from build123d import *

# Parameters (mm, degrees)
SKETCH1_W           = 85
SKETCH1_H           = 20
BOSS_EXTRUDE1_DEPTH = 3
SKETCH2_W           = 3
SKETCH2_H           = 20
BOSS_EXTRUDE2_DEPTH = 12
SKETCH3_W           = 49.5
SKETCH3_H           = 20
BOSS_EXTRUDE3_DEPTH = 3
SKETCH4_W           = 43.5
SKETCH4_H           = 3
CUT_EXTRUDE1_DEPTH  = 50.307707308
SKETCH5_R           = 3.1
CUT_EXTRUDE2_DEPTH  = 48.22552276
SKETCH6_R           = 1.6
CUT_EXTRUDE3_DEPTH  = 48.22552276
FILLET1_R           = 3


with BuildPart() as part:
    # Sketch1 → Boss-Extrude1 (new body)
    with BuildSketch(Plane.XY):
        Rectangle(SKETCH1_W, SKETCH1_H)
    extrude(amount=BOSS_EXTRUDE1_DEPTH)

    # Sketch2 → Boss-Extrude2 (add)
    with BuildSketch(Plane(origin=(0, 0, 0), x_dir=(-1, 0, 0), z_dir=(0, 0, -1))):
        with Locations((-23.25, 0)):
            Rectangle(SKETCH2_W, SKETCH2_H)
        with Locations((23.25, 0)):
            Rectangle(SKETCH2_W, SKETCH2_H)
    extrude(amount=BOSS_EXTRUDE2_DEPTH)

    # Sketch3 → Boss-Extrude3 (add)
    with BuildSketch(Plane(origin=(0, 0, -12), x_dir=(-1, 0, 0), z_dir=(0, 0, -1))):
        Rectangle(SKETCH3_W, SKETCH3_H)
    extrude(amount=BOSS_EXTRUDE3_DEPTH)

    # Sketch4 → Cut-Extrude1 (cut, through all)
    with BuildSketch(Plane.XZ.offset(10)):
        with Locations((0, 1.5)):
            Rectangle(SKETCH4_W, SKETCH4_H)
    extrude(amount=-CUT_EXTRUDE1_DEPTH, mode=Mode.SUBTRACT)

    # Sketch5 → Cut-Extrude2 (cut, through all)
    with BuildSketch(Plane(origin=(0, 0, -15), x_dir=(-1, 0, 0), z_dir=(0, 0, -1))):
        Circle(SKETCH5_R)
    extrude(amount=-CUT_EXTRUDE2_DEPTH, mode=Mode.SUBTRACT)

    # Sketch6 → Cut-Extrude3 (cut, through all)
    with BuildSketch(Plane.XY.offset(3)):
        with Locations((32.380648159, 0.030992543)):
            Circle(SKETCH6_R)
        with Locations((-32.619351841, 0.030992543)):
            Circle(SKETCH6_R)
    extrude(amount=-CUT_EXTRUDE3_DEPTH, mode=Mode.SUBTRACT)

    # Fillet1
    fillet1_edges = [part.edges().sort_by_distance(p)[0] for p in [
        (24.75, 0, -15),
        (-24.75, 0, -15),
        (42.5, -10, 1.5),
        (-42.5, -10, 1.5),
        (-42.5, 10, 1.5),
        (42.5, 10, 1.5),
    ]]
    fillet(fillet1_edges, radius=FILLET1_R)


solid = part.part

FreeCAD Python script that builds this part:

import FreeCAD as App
import Part
import Sketcher
Q = App.Units.Quantity


def edges_at(feature, points):
    """Names of the edges that pass closest to the given points."""
    edges = feature.Shape.Edges
    near = lambda p: min(range(len(edges)), key=lambda i: edges[i].distToShape(Part.Vertex(*p))[0])
    return sorted({f"Edge{near(p) + 1}" for p in points})


def add_polygon(sketch, points):
    """Adds a closed chain of lines whose ends are joined by coincident constraints."""
    first, n = sketch.GeometryCount, len(points)
    for a, b in zip(points, points[1:] + points[:1]):
        sketch.addGeometry(Part.LineSegment(App.Vector(*a, 0), App.Vector(*b, 0)), False)
    for i in range(n):
        sketch.addConstraint(Sketcher.Constraint("Coincident", first + i, 2, first + (i + 1) % n, 1))

doc = App.newDocument("Part")
body = doc.addObject("PartDesign::Body", "Body")

# Sketch on XY plane
sketch1 = body.newObject("Sketcher::SketchObject", "Sketch")
sketch1.AttachmentSupport = (doc.getObject("XY_Plane"), [""])
sketch1.MapMode = "FlatFace"
add_polygon(sketch1, [(-42, 10), (-42, -10), (42, -10), (42, 10)])  # lines 0-3
sketch1.addConstraint([
    Sketcher.Constraint("Vertical", 0),
    Sketcher.Constraint("Horizontal", 1),
    Sketcher.Constraint("Vertical", 2),
    Sketcher.Constraint("Horizontal", 3),
    Sketcher.Constraint("Symmetric", 0, 2, 2, 2, -1, 1),
    Sketcher.Constraint("DistanceX", 1, 1, 1, 2, Q("85 mm")),
    Sketcher.Constraint("DistanceY", 0, 2, 0, 1, Q("20 mm")),
])
pad1 = body.newObject("PartDesign::Pad", "Pad")
pad1.Profile = sketch1
pad1.Length = 3

# Sketch on XY plane
sketch2 = body.newObject("Sketcher::SketchObject", "Sketch001")
sketch2.AttachmentSupport = (doc.getObject("XY_Plane"), [""])
sketch2.MapMode = "FlatFace"
add_polygon(sketch2, [(24.8, 10), (24.8, -10), (21.8, -10), (21.8, 10)])  # lines 0-3
add_polygon(sketch2, [(-21.8, 10), (-21.8, -10), (-24.8, -10), (-24.8, 10)])  # lines 4-7
sketch2.addConstraint([
    Sketcher.Constraint("Vertical", 0),
    Sketcher.Constraint("Horizontal", 1),
    Sketcher.Constraint("Vertical", 2),
    Sketcher.Constraint("Horizontal", 3),
    Sketcher.Constraint("Vertical", 4),
    Sketcher.Constraint("Horizontal", 5),
    Sketcher.Constraint("Vertical", 6),
    Sketcher.Constraint("Horizontal", 7),
    Sketcher.Constraint("Symmetric", 2, 2, 4, 2, -1, 1),
    Sketcher.Constraint("Symmetric", 0, 2, 6, 2, -1, 1),
    Sketcher.Constraint("Horizontal", 1, 2, 4, 2),
    Sketcher.Constraint("DistanceX", 1, 2, 1, 1, Q("3 mm")),
    Sketcher.Constraint("DistanceY", 0, 2, 0, 1, Q("20 mm")),
    Sketcher.Constraint("DistanceX", 4, 2, 1, 2, Q("43.5 mm")),
])
pad2 = body.newObject("PartDesign::Pad", "Pad001")
pad2.Profile = sketch2
pad2.Length = 12
pad2.Reversed = True

# Sketch on XY plane
sketch3 = body.newObject("Sketcher::SketchObject", "Sketch002")
sketch3.AttachmentSupport = (doc.getObject("XY_Plane"), [""])
sketch3.MapMode = "FlatFace"
sketch3.AttachmentOffset = App.Placement(App.Vector(0, 0, -12), App.Rotation())
add_polygon(sketch3, [(25, 10), (25, -10), (-25, -10), (-25, 10)])  # lines 0-3
sketch3.addConstraint([
    Sketcher.Constraint("Vertical", 0),
    Sketcher.Constraint("Horizontal", 1),
    Sketcher.Constraint("Vertical", 2),
    Sketcher.Constraint("Horizontal", 3),
    Sketcher.Constraint("Symmetric", 0, 2, 2, 2, -1, 1),
    Sketcher.Constraint("DistanceY", 0, 2, 0, 1, Q("20 mm")),
    Sketcher.Constraint("DistanceX", 1, 2, 1, 1, Q("49.5 mm")),
])
pad3 = body.newObject("PartDesign::Pad", "Pad002")
pad3.Profile = sketch3
pad3.Length = 3
pad3.Reversed = True

# Sketch on XZ plane
sketch4 = body.newObject("Sketcher::SketchObject", "Sketch003")
sketch4.AttachmentSupport = (doc.getObject("XZ_Plane"), [""])
sketch4.MapMode = "FlatFace"
sketch4.AttachmentOffset = App.Placement(App.Vector(0, 0, 10), App.Rotation())
add_polygon(sketch4, [(-21.8, 3), (-21.8, 0), (21.8, 0), (21.8, 3)])  # lines 0-3
sketch4.addConstraint([
    Sketcher.Constraint("Vertical", 0),
    Sketcher.Constraint("Horizontal", 1),
    Sketcher.Constraint("Vertical", 2),
    Sketcher.Constraint("Horizontal", 3),
    Sketcher.Constraint("Symmetric", 0, 2, 1, 2, -1, 1),
    Sketcher.Constraint("DistanceY", 0, 2, 0, 1, Q("3 mm")),
    Sketcher.Constraint("DistanceX", 1, 1, 1, 2, Q("43.5 mm")),
])
pocket1 = body.newObject("PartDesign::Pocket", "Pocket")
pocket1.Profile = sketch4
pocket1.Type = "ThroughAll"

# Sketch on XY plane
sketch5 = body.newObject("Sketcher::SketchObject", "Sketch004")
sketch5.AttachmentSupport = (doc.getObject("XY_Plane"), [""])
sketch5.MapMode = "FlatFace"
sketch5.AttachmentOffset = App.Placement(App.Vector(0, 0, -15), App.Rotation())
sketch5.addGeometry(Part.Circle(App.Vector(0, 0, 0), App.Vector(0, 0, 1), 3.1), False)
sketch5.addConstraint([
    Sketcher.Constraint("Coincident", 0, 3, -1, 1),
    Sketcher.Constraint("Diameter", 0, Q("6.2 mm")),
])
pocket2 = body.newObject("PartDesign::Pocket", "Pocket001")
pocket2.Profile = sketch5
pocket2.Type = "ThroughAll"
pocket2.Reversed = True

# Sketch on XY plane
sketch6 = body.newObject("Sketcher::SketchObject", "Sketch005")
sketch6.AttachmentSupport = (doc.getObject("XY_Plane"), [""])
sketch6.MapMode = "FlatFace"
sketch6.AttachmentOffset = App.Placement(App.Vector(0, 0, 3), App.Rotation())
sketch6.addGeometry([
    Part.Circle(App.Vector(32.4, 0, 0), App.Vector(0, 0, 1), 1.6),
    Part.Circle(App.Vector(-32.6, 0, 0), App.Vector(0, 0, 1), 1.6),
], False)
sketch6.addConstraint([
    Sketcher.Constraint("Equal", 0, 1),
    Sketcher.Constraint("Horizontal", 0, 3, 1, 3),
    Sketcher.Constraint("Diameter", 0, Q("3.2 mm")),
    Sketcher.Constraint("DistanceX", 1, 3, 0, 3, Q("65 mm")),
    Sketcher.Constraint("DistanceX", -1, 1, 0, 3, Q("32.380648 mm")),
    Sketcher.Constraint("DistanceY", -1, 1, 0, 3, Q("0.030993 mm")),
])
pocket3 = body.newObject("PartDesign::Pocket", "Pocket002")
pocket3.Profile = sketch6
pocket3.Type = "ThroughAll"
doc.recompute()

fillet = body.newObject("PartDesign::Fillet", "Fillet")
fillet.Base = (pocket3, edges_at(pocket3, [
    (24.75, 0, -15),
    (-24.75, 0, -15),
    (42.5, -10, 1.5),
    (-42.5, -10, 1.5),
    (-42.5, 10, 1.5),
    (42.5, 10, 1.5),
]))
fillet.Radius = 3

doc.recompute()
